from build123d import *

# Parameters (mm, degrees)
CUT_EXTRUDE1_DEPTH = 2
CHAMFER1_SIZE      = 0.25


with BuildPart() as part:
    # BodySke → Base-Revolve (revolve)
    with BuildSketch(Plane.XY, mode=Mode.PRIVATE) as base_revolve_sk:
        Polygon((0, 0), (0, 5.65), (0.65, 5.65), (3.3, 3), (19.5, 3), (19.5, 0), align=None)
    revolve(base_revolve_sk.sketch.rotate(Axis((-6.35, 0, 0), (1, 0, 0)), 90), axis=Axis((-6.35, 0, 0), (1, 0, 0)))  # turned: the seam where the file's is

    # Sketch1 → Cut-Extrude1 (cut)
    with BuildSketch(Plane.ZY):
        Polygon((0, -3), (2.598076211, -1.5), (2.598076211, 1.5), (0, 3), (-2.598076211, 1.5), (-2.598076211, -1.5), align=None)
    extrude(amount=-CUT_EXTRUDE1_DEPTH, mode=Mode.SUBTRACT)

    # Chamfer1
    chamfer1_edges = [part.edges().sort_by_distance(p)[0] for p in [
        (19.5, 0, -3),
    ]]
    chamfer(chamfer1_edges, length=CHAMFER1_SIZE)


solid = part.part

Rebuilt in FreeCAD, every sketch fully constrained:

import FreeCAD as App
import Part
import Sketcher
from FreeCAD import Vector
Q = App.Units.Quantity


def edges_at(feature, points):
    """Names of the edges that pass closest to the given points."""
    edges = feature.Shape.Edges
    near = lambda p: min(range(len(edges)), key=lambda i: edges[i].distToShape(Part.Vertex(*p))[0])
    return sorted({f"Edge{near(p) + 1}" for p in points})

doc = App.newDocument("Part")
body = doc.addObject("PartDesign::Body", "Body")

# Sketch on XY plane
sketch1 = body.newObject("Sketcher::SketchObject", "Sketch")
sketch1.AttachmentSupport = (doc.getObject("XY_Plane"), [""])
sketch1.MapMode = "FlatFace"
sketch1.addGeometry([
    Part.LineSegment(Vector(0, 5.7, 0), Vector(0, 0, 0)),  # 0
    Part.LineSegment(Vector(0, 0, 0), Vector(19.5, 0, 0)),  # 1
    Part.LineSegment(Vector(19.5, 0, 0), Vector(19.5, 3, 0)),  # 2
    Part.LineSegment(Vector(19.5, 3, 0), Vector(3.3, 3, 0)),  # 3
    Part.LineSegment(Vector(3.3, 3, 0), Vector(0.7, 5.7, 0)),  # 4
    Part.LineSegment(Vector(0.7, 5.7, 0), Vector(0, 5.7, 0)),  # 5
], False)
sketch1.addConstraint([
    Sketcher.Constraint("Coincident", 0, 2, 1, 1),
    Sketcher.Constraint("Coincident", 1, 2, 2, 1),
    Sketcher.Constraint("Coincident", 2, 2, 3, 1),
    Sketcher.Constraint("Coincident", 3, 2, 4, 1),
    Sketcher.Constraint("Coincident", 4, 2, 5, 1),
    Sketcher.Constraint("Coincident", 5, 2, 0, 1),
    Sketcher.Constraint("Vertical", 0),
    Sketcher.Constraint("Horizontal", 1),
    Sketcher.Constraint("Vertical", 2),
    Sketcher.Constraint("Horizontal", 3),
    Sketcher.Constraint("Horizontal", 5),
    Sketcher.Constraint("Coincident", 0, 2, -1, 1),
    Sketcher.Constraint("DistanceY", 2, 1, 2, 2, 3.0),
    Sketcher.Constraint("Angle", 4, Q("135 deg")),
    Sketcher.Constraint("DistanceX", 1, 1, 1, 2, 19.5),
    Sketcher.Constraint("DistanceX", 3, 2, 3, 1, 16.2),
    Sketcher.Constraint("DistanceX", 5, 2, 5, 1, 0.65),
])
revolution = body.newObject("PartDesign::Revolution", "Revolution")
revolution.Profile = sketch1
revolution.ReferenceAxis = (sketch1, ["H_Axis"])
revolution.Angle = 360

# Sketch on YZ plane
sketch2 = body.newObject("Sketcher::SketchObject", "Sketch001")
sketch2.AttachmentSupport = (doc.getObject("YZ_Plane"), [""])
sketch2.MapMode = "FlatFace"
sketch2.addGeometry([
    Part.LineSegment(Vector(-3, 0, 0), Vector(-1.5, 2.6, 0)),  # 0
    Part.LineSegment(Vector(-1.5, 2.6, 0), Vector(1.5, 2.6, 0)),  # 1
    Part.LineSegment(Vector(1.5, 2.6, 0), Vector(3, 0, 0)),  # 2
    Part.LineSegment(Vector(3, 0, 0), Vector(1.5, -2.6, 0)),  # 3
    Part.LineSegment(Vector(1.5, -2.6, 0), Vector(-1.5, -2.6, 0)),  # 4
    Part.LineSegment(Vector(-1.5, -2.6, 0), Vector(-3, 0, 0)),  # 5
], False)
sketch2.addConstraint([
    Sketcher.Constraint("Coincident", 0, 2, 1, 1),
    Sketcher.Constraint("Coincident", 1, 2, 2, 1),
    Sketcher.Constraint("Coincident", 2, 2, 3, 1),
    Sketcher.Constraint("Coincident", 3, 2, 4, 1),
    Sketcher.Constraint("Coincident", 4, 2, 5, 1),
    Sketcher.Constraint("Coincident", 5, 2, 0, 1),
    Sketcher.Constraint("Horizontal", 1),
    Sketcher.Constraint("Horizontal", 4),
    Sketcher.Constraint("Symmetric", 0, 2, 3, 2, -1, 1),
    Sketcher.Constraint("Symmetric", 2, 2, 5, 2, -1, 1),
    Sketcher.Constraint("PointOnObject", 2, 2, -1),
    Sketcher.Constraint("Parallel", 2, 5),
    Sketcher.Constraint("Vertical", 1, 2, 3, 2),
    Sketcher.Constraint("DistanceX", 1, 1, 1, 2, 3.0),
    Sketcher.Constraint("Angle", 0, Q("60 deg")),
    Sketcher.Constraint("Distance", 0, 3.0),
])
pocket1 = body.newObject("PartDesign::Pocket", "Pocket")
pocket1.Profile = sketch2
pocket1.Length = 2
pocket1.Reversed = True
doc.recompute()

chamfer = body.newObject("PartDesign::Chamfer", "Chamfer")
chamfer.Base = (pocket1, edges_at(pocket1, [(19.5, 0, -3)]))
chamfer.Size = 0.25

doc.recompute()
